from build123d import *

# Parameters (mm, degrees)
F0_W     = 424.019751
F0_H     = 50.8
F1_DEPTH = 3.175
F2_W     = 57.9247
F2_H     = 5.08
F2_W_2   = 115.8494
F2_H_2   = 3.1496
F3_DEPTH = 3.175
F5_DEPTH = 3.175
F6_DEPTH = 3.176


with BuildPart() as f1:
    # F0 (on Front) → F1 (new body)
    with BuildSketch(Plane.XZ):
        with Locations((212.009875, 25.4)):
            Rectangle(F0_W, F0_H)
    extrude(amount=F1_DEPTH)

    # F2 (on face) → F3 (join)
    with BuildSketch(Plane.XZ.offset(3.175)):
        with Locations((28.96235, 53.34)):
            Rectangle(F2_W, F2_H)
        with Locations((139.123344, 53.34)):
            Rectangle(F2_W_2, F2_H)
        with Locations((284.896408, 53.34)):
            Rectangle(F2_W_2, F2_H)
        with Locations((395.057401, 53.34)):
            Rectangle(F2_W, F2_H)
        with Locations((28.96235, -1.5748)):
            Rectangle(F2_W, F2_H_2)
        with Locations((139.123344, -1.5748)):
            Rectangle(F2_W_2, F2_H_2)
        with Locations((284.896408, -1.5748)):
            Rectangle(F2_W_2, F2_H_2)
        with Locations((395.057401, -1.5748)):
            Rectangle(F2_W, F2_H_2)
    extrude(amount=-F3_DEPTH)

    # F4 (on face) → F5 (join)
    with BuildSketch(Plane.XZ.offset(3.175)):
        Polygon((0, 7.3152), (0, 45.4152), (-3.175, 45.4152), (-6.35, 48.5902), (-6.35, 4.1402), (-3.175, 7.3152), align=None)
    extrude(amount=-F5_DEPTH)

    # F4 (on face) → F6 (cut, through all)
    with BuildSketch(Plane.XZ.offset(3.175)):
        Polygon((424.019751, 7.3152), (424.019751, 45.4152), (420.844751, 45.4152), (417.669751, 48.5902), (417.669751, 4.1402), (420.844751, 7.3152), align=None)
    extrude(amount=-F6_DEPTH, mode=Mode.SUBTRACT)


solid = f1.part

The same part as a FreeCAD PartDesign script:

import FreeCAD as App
import Part
import Sketcher
from FreeCAD import Vector
Q = App.Units.Quantity

doc = App.newDocument("Part")
body = doc.addObject("PartDesign::Body", "Body")

# Sketch on XZ plane
sketch1 = body.newObject("Sketcher::SketchObject", "Sketch")
sketch1.AttachmentSupport = (doc.getObject("XZ_Plane"), [""])
sketch1.MapMode = "FlatFace"
sketch1.addGeometry(Part.LineSegment(Vector(0, 51, 0), Vector(0, 0, 0)), False)
sketch1.addGeometry(Part.LineSegment(Vector(0, 0, 0), Vector(424, 0, 0)), False)
sketch1.addGeometry(Part.LineSegment(Vector(424, 0, 0), Vector(424, 51, 0)), False)
sketch1.addGeometry(Part.LineSegment(Vector(424, 51, 0), Vector(0, 51, 0)), False)
sketch1.addConstraint(Sketcher.Constraint("Coincident", 0, 2, 1, 1))
sketch1.addConstraint(Sketcher.Constraint("Coincident", 1, 2, 2, 1))
sketch1.addConstraint(Sketcher.Constraint("Coincident", 2, 2, 3, 1))
sketch1.addConstraint(Sketcher.Constraint("Coincident", 3, 2, 0, 1))
sketch1.addConstraint(Sketcher.Constraint("Vertical", 0))
sketch1.addConstraint(Sketcher.Constraint("Horizontal", 1))
sketch1.addConstraint(Sketcher.Constraint("Vertical", 2))
sketch1.addConstraint(Sketcher.Constraint("Horizontal", 3))
sketch1.addConstraint(Sketcher.Constraint("Coincident", 0, 2, -1, 1))
sketch1.addConstraint(Sketcher.Constraint("DistanceY", 0, 2, 0, 1, Q("2 in")))
sketch1.addConstraint(Sketcher.Constraint("DistanceX", 1, 1, 1, 2, 424.019751))
pad1 = body.newObject("PartDesign::Pad", "Pad")
pad1.Profile = sketch1
pad1.Length = Q("0.125 in")

# Sketch on XZ plane
sketch2 = body.newObject("Sketcher::SketchObject", "Sketch001")
sketch2.AttachmentSupport = (doc.getObject("XZ_Plane"), [""])
sketch2.MapMode = "FlatFace"
sketch2.AttachmentOffset = App.Placement(Vector(0, 0, 0.125 * 25.4), App.Rotation())
sketch2.addGeometry(Part.LineSegment(Vector(0, 55.9, 0), Vector(0, 50.8, 0)), False)
sketch2.addGeometry(Part.LineSegment(Vector(0, 50.8, 0), Vector(57.9, 50.8, 0)), False)
sketch2.addGeometry(Part.LineSegment(Vector(57.9, 50.8, 0), Vector(57.9, 55.9, 0)), False)
sketch2.addGeometry(Part.LineSegment(Vector(57.9, 55.9, 0), Vector(0, 55.9, 0)), False)
sketch2.addGeometry(Part.LineSegment(Vector(81.2, 55.9, 0), Vector(81.2, 50.8, 0)), False)
sketch2.addGeometry(Part.LineSegment(Vector(81.2, 50.8, 0), Vector(197, 50.8, 0)), False)
sketch2.addGeometry(Part.LineSegment(Vector(197, 50.8, 0), Vector(197, 55.9, 0)), False)
sketch2.addGeometry(Part.LineSegment(Vector(197, 55.9, 0), Vector(81.2, 55.9, 0)), False)
sketch2.addGeometry(Part.LineSegment(Vector(227, 55.9, 0), Vector(227, 50.8, 0)), False)
sketch2.addGeometry(Part.LineSegment(Vector(227, 50.8, 0), Vector(342.8, 50.8, 0)), False)
sketch2.addGeometry(Part.LineSegment(Vector(342.8, 50.8, 0), Vector(342.8, 55.9, 0)), False)
sketch2.addGeometry(Part.LineSegment(Vector(342.8, 55.9, 0), Vector(227, 55.9, 0)), False)
sketch2.addGeometry(Part.LineSegment(Vector(366.1, 55.9, 0), Vector(366.1, 50.8, 0)), False)
sketch2.addGeometry(Part.LineSegment(Vector(366.1, 50.8, 0), Vector(424, 50.8, 0)), False)
sketch2.addGeometry(Part.LineSegment(Vector(424, 50.8, 0), Vector(424, 55.9, 0)), False)
sketch2.addGeometry(Part.LineSegment(Vector(424, 55.9, 0), Vector(366.1, 55.9, 0)), False)
sketch2.addGeometry(Part.LineSegment(Vector(0, 0, 0), Vector(0, -3.1, 0)), False)
sketch2.addGeometry(Part.LineSegment(Vector(0, -3.1, 0), Vector(57.9, -3.1, 0)), False)
sketch2.addGeometry(Part.LineSegment(Vector(57.9, -3.1, 0), Vector(57.9, 0, 0)), False)
sketch2.addGeometry(Part.LineSegment(Vector(57.9, 0, 0), Vector(0, 0, 0)), False)
sketch2.addGeometry(Part.LineSegment(Vector(81.2, 0, 0), Vector(81.2, -3.1, 0)), False)
sketch2.addGeometry(Part.LineSegment(Vector(81.2, -3.1, 0), Vector(197, -3.1, 0)), False)
sketch2.addGeometry(Part.LineSegment(Vector(197, -3.1, 0), Vector(197, 0, 0)), False)
sketch2.addGeometry(Part.LineSegment(Vector(197, 0, 0), Vector(81.2, 0, 0)), False)
sketch2.addGeometry(Part.LineSegment(Vector(227, 0, 0), Vector(227, -3.1, 0)), False)
sketch2.addGeometry(Part.LineSegment(Vector(227, -3.1, 0), Vector(342.8, -3.1, 0)), False)
sketch2.addGeometry(Part.LineSegment(Vector(342.8, -3.1, 0), Vector(342.8, 0, 0)), False)
sketch2.addGeometry(Part.LineSegment(Vector(342.8, 0, 0), Vector(227, 0, 0)), False)
sketch2.addGeometry(Part.LineSegment(Vector(366.1, 0, 0), Vector(366.1, -3.1, 0)), False)
sketch2.addGeometry(Part.LineSegment(Vector(366.1, -3.1, 0), Vector(424, -3.1, 0)), False)
sketch2.addGeometry(Part.LineSegment(Vector(424, -3.1, 0), Vector(424, 0, 0)), False)
sketch2.addGeometry(Part.LineSegment(Vector(424, 0, 0), Vector(366.1, 0, 0)), False)
sketch2.addConstraint(Sketcher.Constraint("Coincident", 0, 2, 1, 1))
sketch2.addConstraint(Sketcher.Constraint("Coincident", 1, 2, 2, 1))
sketch2.addConstraint(Sketcher.Constraint("Coincident", 2, 2, 3, 1))
sketch2.addConstraint(Sketcher.Constraint("Coincident", 3, 2, 0, 1))
sketch2.addConstraint(Sketcher.Constraint("Coincident", 4, 2, 5, 1))
sketch2.addConstraint(Sketcher.Constraint("Coincident", 5, 2, 6, 1))
sketch2.addConstraint(Sketcher.Constraint("Coincident", 6, 2, 7, 1))
sketch2.addConstraint(Sketcher.Constraint("Coincident", 7, 2, 4, 1))
sketch2.addConstraint(Sketcher.Constraint("Coincident", 8, 2, 9, 1))
sketch2.addConstraint(Sketcher.Constraint("Coincident", 9, 2, 10, 1))
sketch2.addConstraint(Sketcher.Constraint("Coincident", 10, 2, 11, 1))
sketch2.addConstraint(Sketcher.Constraint("Coincident", 11, 2, 8, 1))
sketch2.addConstraint(Sketcher.Constraint("Coincident", 12, 2, 13, 1))
sketch2.addConstraint(Sketcher.Constraint("Coincident", 13, 2, 14, 1))
sketch2.addConstraint(Sketcher.Constraint("Coincident", 14, 2, 15, 1))
sketch2.addConstraint(Sketcher.Constraint("Coincident", 15, 2, 12, 1))
sketch2.addConstraint(Sketcher.Constraint("Coincident", 16, 2, 17, 1))
sketch2.addConstraint(Sketcher.Constraint("Coincident", 17, 2, 18, 1))
sketch2.addConstraint(Sketcher.Constraint("Coincident", 18, 2, 19, 1))
sketch2.addConstraint(Sketcher.Constraint("Coincident", 19, 2, 16, 1))
sketch2.addConstraint(Sketcher.Constraint("Coincident", 20, 2, 21, 1))
sketch2.addConstraint(Sketcher.Constraint("Coincident", 21, 2, 22, 1))
sketch2.addConstraint(Sketcher.Constraint("Coincident", 22, 2, 23, 1))
sketch2.addConstraint(Sketcher.Constraint("Coincident", 23, 2, 20, 1))
sketch2.addConstraint(Sketcher.Constraint("Coincident", 24, 2, 25, 1))
sketch2.addConstraint(Sketcher.Constraint("Coincident", 25, 2, 26, 1))
sketch2.addConstraint(Sketcher.Constraint("Coincident", 26, 2, 27, 1))
sketch2.addConstraint(Sketcher.Constraint("Coincident", 27, 2, 24, 1))
sketch2.addConstraint(Sketcher.Constraint("Coincident", 28, 2, 29, 1))
sketch2.addConstraint(Sketcher.Constraint("Coincident", 29, 2, 30, 1))
sketch2.addConstraint(Sketcher.Constraint("Coincident", 30, 2, 31, 1))
sketch2.addConstraint(Sketcher.Constraint("Coincident", 31, 2, 28, 1))
sketch2.addConstraint(Sketcher.Constraint("Vertical", 0))
sketch2.addConstraint(Sketcher.Constraint("Horizontal", 1))
sketch2.addConstraint(Sketcher.Constraint("Vertical", 2))
sketch2.addConstraint(Sketcher.Constraint("Horizontal", 3))
sketch2.addConstraint(Sketcher.Constraint("Vertical", 4))
sketch2.addConstraint(Sketcher.Constraint("Horizontal", 5))
sketch2.addConstraint(Sketcher.Constraint("Vertical", 6))
sketch2.addConstraint(Sketcher.Constraint("Horizontal", 7))
sketch2.addConstraint(Sketcher.Constraint("Vertical", 8))
sketch2.addConstraint(Sketcher.Constraint("Horizontal", 9))
sketch2.addConstraint(Sketcher.Constraint("Vertical", 10))
sketch2.addConstraint(Sketcher.Constraint("Horizontal", 11))
sketch2.addConstraint(Sketcher.Constraint("Vertical", 12))
sketch2.addConstraint(Sketcher.Constraint("Horizontal", 13))
sketch2.addConstraint(Sketcher.Constraint("Vertical", 14))
sketch2.addConstraint(Sketcher.Constraint("Horizontal", 15))
sketch2.addConstraint(Sketcher.Constraint("Vertical", 16))
sketch2.addConstraint(Sketcher.Constraint("Horizontal", 17))
sketch2.addConstraint(Sketcher.Constraint("Vertical", 18))
sketch2.addConstraint(Sketcher.Constraint("Horizontal", 19))
sketch2.addConstraint(Sketcher.Constraint("Vertical", 20))
sketch2.addConstraint(Sketcher.Constraint("Horizontal", 21))
sketch2.addConstraint(Sketcher.Constraint("Vertical", 22))
sketch2.addConstraint(Sketcher.Constraint("Horizontal", 23))
sketch2.addConstraint(Sketcher.Constraint("Vertical", 24))
sketch2.addConstraint(Sketcher.Constraint("Horizontal", 25))
sketch2.addConstraint(Sketcher.Constraint("Vertical", 26))
sketch2.addConstraint(Sketcher.Constraint("Horizontal", 27))
sketch2.addConstraint(Sketcher.Constraint("Vertical", 28))
sketch2.addConstraint(Sketcher.Constraint("Horizontal", 29))
sketch2.addConstraint(Sketcher.Constraint("Vertical", 30))
sketch2.addConstraint(Sketcher.Constraint("Horizontal", 31))
sketch2.addConstraint(Sketcher.Constraint("Coincident", 19, 2, -1, 1))
sketch2.addConstraint(Sketcher.Constraint("PointOnObject", 0, 2, -2))
sketch2.addConstraint(Sketcher.Constraint("PointOnObject", 22, 2, -1))
sketch2.addConstraint(Sketcher.Constraint("PointOnObject", 26, 2, -1))
sketch2.addConstraint(Sketcher.Constraint("PointOnObject", 30, 2, -1))
sketch2.addConstraint(Sketcher.Constraint("Horizontal", 1, 2, 4, 2))
sketch2.addConstraint(Sketcher.Constraint("Horizontal", 3, 2, 6, 2))
sketch2.addConstraint(Sketcher.Constraint("Horizontal", 5, 2, 8, 2))
sketch2.addConstraint(Sketcher.Constraint("Horizontal", 7, 2, 10, 2))
sketch2.addConstraint(Sketcher.Constraint("Horizontal", 9, 2, 12, 2))
sketch2.addConstraint(Sketcher.Constraint("Horizontal", 11, 2, 14, 2))
sketch2.addConstraint(Sketcher.Constraint("Horizontal", 17, 2, 20, 2))
sketch2.addConstraint(Sketcher.Constraint("Horizontal", 21, 2, 24, 2))
sketch2.addConstraint(Sketcher.Constraint("Horizontal", 25, 2, 28, 2))
sketch2.addConstraint(Sketcher.Constraint("Vertical", 2, 2, 17, 2))
sketch2.addConstraint(Sketcher.Constraint("Vertical", 7, 2, 20, 2))
sketch2.addConstraint(Sketcher.Constraint("Vertical", 6, 2, 21, 2))
sketch2.addConstraint(Sketcher.Constraint("Vertical", 11, 2, 24, 2))
sketch2.addConstraint(Sketcher.Constraint("Vertical", 10, 2, 25, 2))
sketch2.addConstraint(Sketcher.Constraint("Vertical", 15, 2, 28, 2))
sketch2.addConstraint(Sketcher.Constraint("Vertical", 14, 2, 29, 2))
sketch2.addConstraint(Sketcher.Constraint("Equal", 7, 9))
sketch2.addConstraint(Sketcher.Constraint("Equal", 3, 13))
sketch2.addConstraint(Sketcher.Constraint("DistanceY", 0, 2, 0, 1, Q("0.2 in")))
sketch2.addConstraint(Sketcher.Constraint("DistanceY", -1, 1, 0, 2, Q("2 in")))
sketch2.addConstraint(Sketcher.Constraint("DistanceX", 5, 1, 5, 2, Q("4.561 in")))
sketch2.addConstraint(Sketcher.Constraint("DistanceY", 16, 2, 16, 1, Q("0.124 in")))
sketch2.addConstraint(Sketcher.Constraint("DistanceX", 1, 1, 1, 2, Q("2.2805 in")))
sketch2.addConstraint(Sketcher.Constraint("DistanceX", -1, 1, 8, 2, 226.971708))
sketch2.addConstraint(Sketcher.Constraint("DistanceX", -1, 1, 12, 2, 366.095051))
sketch2.addConstraint(Sketcher.Constraint("DistanceX", -1, 1, 4, 2, 81.198644))
pad2 = body.newObject("PartDesign::Pad", "Pad001")
pad2.Profile = sketch2
pad2.Length = Q("0.125 in")
pad2.Reversed = True

# Sketch on XZ plane
sketch3 = body.newObject("Sketcher::SketchObject", "Sketch002")
sketch3.AttachmentSupport = (doc.getObject("XZ_Plane"), [""])
sketch3.MapMode = "FlatFace"
sketch3.AttachmentOffset = App.Placement(Vector(0, 0, 0.125 * 25.4), App.Rotation())
sketch3.addGeometry(Part.LineSegment(Vector(0, 7.3, 0), Vector(0, 45.4, 0)), False)
sketch3.addGeometry(Part.LineSegment(Vector(0, 45.4, 0), Vector(-3.2, 45.4, 0)), False)
sketch3.addGeometry(Part.LineSegment(Vector(-3.2, 45.4, 0), Vector(-6.3, 48.6, 0)), False)
sketch3.addGeometry(Part.LineSegment(Vector(-6.3, 48.6, 0), Vector(-6.3, 4.1, 0)), False)
sketch3.addGeometry(Part.LineSegment(Vector(-6.3, 4.1, 0), Vector(-3.2, 7.3, 0)), False)
sketch3.addGeometry(Part.LineSegment(Vector(-3.2, 7.3, 0), Vector(0, 7.3, 0)), False)
sketch3.addConstraint(Sketcher.Constraint("Coincident", 0, 2, 1, 1))
sketch3.addConstraint(Sketcher.Constraint("Coincident", 1, 2, 2, 1))
sketch3.addConstraint(Sketcher.Constraint("Coincident", 2, 2, 3, 1))
sketch3.addConstraint(Sketcher.Constraint("Coincident", 3, 2, 4, 1))
sketch3.addConstraint(Sketcher.Constraint("Coincident", 4, 2, 5, 1))
sketch3.addConstraint(Sketcher.Constraint("Coincident", 5, 2, 0, 1))
sketch3.addConstraint(Sketcher.Constraint("Vertical", 0))
sketch3.addConstraint(Sketcher.Constraint("Horizontal", 1))
sketch3.addConstraint(Sketcher.Constraint("Vertical", 3))
sketch3.addConstraint(Sketcher.Constraint("Horizontal", 5))
sketch3.addConstraint(Sketcher.Constraint("PointOnObject", 0, 2, -2))
sketch3.addConstraint(Sketcher.Constraint("Perpendicular", 2, 4))
sketch3.addConstraint(Sketcher.Constraint("Vertical", 1, 2, 4, 2))
sketch3.addConstraint(Sketcher.Constraint("Equal", 2, 4))
sketch3.addConstraint(Sketcher.Constraint("DistanceY", 0, 1, 0, 2, Q("1.5 in")))
sketch3.addConstraint(Sketcher.Constraint("DistanceY", 3, 2, 3, 1, Q("1.75 in")))
sketch3.addConstraint(Sketcher.Constraint("DistanceX", 1, 2, 1, 1, Q("0.125 in")))
sketch3.addConstraint(Sketcher.Constraint("DistanceY", -1, 1, 0, 2, Q("1.788 in")))
pad3 = body.newObject("PartDesign::Pad", "Pad002")
pad3.Profile = sketch3
pad3.Length = Q("0.125 in")
pad3.Reversed = True

# Sketch on XZ plane
sketch4 = body.newObject("Sketcher::SketchObject", "Sketch003")
sketch4.AttachmentSupport = (doc.getObject("XZ_Plane"), [""])
sketch4.MapMode = "FlatFace"
sketch4.AttachmentOffset = App.Placement(Vector(0, 0, 0.125 * 25.4), App.Rotation())
sketch4.addGeometry(Part.LineSegment(Vector(424, 7.3, 0), Vector(424, 45.4, 0)), False)
sketch4.addGeometry(Part.LineSegment(Vector(424, 45.4, 0), Vector(420.8, 45.4, 0)), False)
sketch4.addGeometry(Part.LineSegment(Vector(420.8, 45.4, 0), Vector(417.7, 48.6, 0)), False)
sketch4.addGeometry(Part.LineSegment(Vector(417.7, 48.6, 0), Vector(417.7, 4.1, 0)), False)
sketch4.addGeometry(Part.LineSegment(Vector(417.7, 4.1, 0), Vector(420.8, 7.3, 0)), False)
sketch4.addGeometry(Part.LineSegment(Vector(420.8, 7.3, 0), Vector(424, 7.3, 0)), False)
sketch4.addConstraint(Sketcher.Constraint("Coincident", 0, 2, 1, 1))
sketch4.addConstraint(Sketcher.Constraint("Coincident", 1, 2, 2, 1))
sketch4.addConstraint(Sketcher.Constraint("Coincident", 2, 2, 3, 1))
sketch4.addConstraint(Sketcher.Constraint("Coincident", 3, 2, 4, 1))
sketch4.addConstraint(Sketcher.Constraint("Coincident", 4, 2, 5, 1))
sketch4.addConstraint(Sketcher.Constraint("Coincident", 5, 2, 0, 1))
sketch4.addConstraint(Sketcher.Constraint("Vertical", 0))
sketch4.addConstraint(Sketcher.Constraint("Horizontal", 1))
sketch4.addConstraint(Sketcher.Constraint("Vertical", 3))
sketch4.addConstraint(Sketcher.Constraint("Horizontal", 5))
sketch4.addConstraint(Sketcher.Constraint("Perpendicular", 2, 4))
sketch4.addConstraint(Sketcher.Constraint("Vertical", 1, 2, 4, 2))
sketch4.addConstraint(Sketcher.Constraint("Equal", 2, 4))
sketch4.addConstraint(Sketcher.Constraint("DistanceY", 0, 1, 0, 2, Q("1.5 in")))
sketch4.addConstraint(Sketcher.Constraint("DistanceY", 3, 2, 3, 1, Q("1.75 in")))
sketch4.addConstraint(Sketcher.Constraint("DistanceX", 1, 2, 1, 1, Q("0.125 in")))
sketch4.addConstraint(Sketcher.Constraint("DistanceY", -1, 1, 0, 2, Q("1.788 in")))
sketch4.addConstraint(Sketcher.Constraint("DistanceX", -1, 1, 0, 2, 424.019751))
pocket1 = body.newObject("PartDesign::Pocket", "Pocket")
pocket1.Profile = sketch4
pocket1.Type = "ThroughAll"

doc.recompute()
